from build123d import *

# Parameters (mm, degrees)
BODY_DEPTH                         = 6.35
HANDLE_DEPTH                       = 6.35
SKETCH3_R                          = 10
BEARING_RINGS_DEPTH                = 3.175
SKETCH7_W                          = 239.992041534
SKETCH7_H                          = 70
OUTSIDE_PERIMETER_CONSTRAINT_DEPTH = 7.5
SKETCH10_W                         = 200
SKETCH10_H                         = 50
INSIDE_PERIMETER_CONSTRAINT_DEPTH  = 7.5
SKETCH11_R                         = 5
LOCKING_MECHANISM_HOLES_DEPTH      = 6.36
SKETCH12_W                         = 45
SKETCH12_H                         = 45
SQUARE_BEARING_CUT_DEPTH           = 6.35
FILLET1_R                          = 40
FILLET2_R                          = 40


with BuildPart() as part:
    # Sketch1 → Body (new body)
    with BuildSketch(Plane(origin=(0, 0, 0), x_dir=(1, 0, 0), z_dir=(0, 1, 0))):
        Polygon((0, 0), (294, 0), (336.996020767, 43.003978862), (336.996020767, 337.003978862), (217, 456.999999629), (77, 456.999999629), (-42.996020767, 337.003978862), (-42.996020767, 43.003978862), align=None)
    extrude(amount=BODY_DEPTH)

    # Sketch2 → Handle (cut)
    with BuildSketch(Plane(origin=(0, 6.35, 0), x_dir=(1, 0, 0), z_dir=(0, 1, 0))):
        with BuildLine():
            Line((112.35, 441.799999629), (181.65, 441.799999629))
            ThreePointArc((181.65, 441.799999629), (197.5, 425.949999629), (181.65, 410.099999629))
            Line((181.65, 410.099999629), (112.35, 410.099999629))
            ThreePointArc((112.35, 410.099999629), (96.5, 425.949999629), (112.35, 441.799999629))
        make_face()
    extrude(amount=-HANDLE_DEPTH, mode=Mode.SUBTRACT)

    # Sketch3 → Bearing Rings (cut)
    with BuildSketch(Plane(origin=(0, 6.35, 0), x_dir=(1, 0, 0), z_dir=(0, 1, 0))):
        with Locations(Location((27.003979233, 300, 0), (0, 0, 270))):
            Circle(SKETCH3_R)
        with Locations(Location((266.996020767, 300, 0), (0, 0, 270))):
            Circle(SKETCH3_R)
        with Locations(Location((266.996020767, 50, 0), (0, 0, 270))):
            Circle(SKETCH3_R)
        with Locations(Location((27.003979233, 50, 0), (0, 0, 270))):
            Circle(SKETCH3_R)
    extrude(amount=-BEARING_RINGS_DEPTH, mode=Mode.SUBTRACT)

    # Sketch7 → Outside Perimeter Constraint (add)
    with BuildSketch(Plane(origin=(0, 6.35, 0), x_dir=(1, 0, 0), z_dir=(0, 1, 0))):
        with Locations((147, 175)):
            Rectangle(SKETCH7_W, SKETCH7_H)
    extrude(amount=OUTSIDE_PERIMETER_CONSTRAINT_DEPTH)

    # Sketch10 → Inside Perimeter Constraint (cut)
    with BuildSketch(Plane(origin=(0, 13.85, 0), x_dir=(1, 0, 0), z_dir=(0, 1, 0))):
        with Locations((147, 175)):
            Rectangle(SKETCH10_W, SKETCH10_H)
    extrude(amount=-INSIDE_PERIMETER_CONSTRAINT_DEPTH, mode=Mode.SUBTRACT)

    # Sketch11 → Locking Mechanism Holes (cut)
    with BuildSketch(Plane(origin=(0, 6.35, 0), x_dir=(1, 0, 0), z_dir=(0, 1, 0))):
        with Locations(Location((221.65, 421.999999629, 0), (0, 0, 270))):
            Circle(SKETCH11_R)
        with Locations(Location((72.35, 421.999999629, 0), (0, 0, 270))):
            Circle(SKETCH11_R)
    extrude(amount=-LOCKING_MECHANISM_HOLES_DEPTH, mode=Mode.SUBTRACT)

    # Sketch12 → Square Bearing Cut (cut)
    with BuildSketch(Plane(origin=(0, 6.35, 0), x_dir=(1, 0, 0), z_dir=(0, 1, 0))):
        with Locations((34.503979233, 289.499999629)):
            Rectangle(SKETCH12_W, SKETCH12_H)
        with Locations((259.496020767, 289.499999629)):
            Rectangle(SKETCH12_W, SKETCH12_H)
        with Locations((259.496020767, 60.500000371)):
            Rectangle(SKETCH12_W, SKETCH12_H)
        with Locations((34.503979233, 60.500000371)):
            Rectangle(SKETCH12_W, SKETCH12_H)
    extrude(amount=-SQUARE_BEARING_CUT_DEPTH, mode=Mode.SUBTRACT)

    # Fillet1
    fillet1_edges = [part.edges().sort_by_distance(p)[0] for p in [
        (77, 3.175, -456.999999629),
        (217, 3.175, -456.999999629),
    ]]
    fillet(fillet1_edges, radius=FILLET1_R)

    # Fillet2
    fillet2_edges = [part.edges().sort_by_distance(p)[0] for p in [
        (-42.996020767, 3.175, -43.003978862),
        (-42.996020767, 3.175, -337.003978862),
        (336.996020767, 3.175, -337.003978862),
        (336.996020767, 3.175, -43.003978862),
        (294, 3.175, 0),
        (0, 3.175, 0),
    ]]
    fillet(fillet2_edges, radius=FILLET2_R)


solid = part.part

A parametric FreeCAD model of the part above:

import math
import FreeCAD as App
import Part
import Sketcher
Q = App.Units.Quantity


def edges_at(feature, points):
    """Names of the edges that pass closest to the given points."""
    edges = feature.Shape.Edges
    near = lambda p: min(range(len(edges)), key=lambda i: edges[i].distToShape(Part.Vertex(*p))[0])
    return sorted({f"Edge{near(p) + 1}" for p in points})

doc = App.newDocument("Part")
body = doc.addObject("PartDesign::Body", "Body")

# Sketch on XZ plane
sketch1 = doc.addObject("Sketcher::SketchObject", "Sketch")
body.addObject(sketch1)
sketch1.AttachmentSupport = (doc.XZ_Plane, [""])
sketch1.MapMode = "FlatFace"
sketch1.addGeometry(Part.LineSegment(App.Vector(0, 0, 0), App.Vector(294, 0, 0)), False)
sketch1.addGeometry(Part.LineSegment(App.Vector(294, 0, 0), App.Vector(337, -43, 0)), False)
sketch1.addGeometry(Part.LineSegment(App.Vector(337, -43, 0), App.Vector(337, -337, 0)), False)
sketch1.addGeometry(Part.LineSegment(App.Vector(337, -337, 0), App.Vector(217, -457, 0)), False)
sketch1.addGeometry(Part.LineSegment(App.Vector(217, -457, 0), App.Vector(77, -457, 0)), False)
sketch1.addGeometry(Part.LineSegment(App.Vector(77, -457, 0), App.Vector(-43, -337, 0)), False)
sketch1.addGeometry(Part.LineSegment(App.Vector(-43, -337, 0), App.Vector(-43, -43, 0)), False)
sketch1.addGeometry(Part.LineSegment(App.Vector(-43, -43, 0), App.Vector(0, 0, 0)), False)
sketch1.addConstraint(Sketcher.Constraint("Coincident", 0, 2, 1, 1))
sketch1.addConstraint(Sketcher.Constraint("Coincident", 1, 2, 2, 1))
sketch1.addConstraint(Sketcher.Constraint("Coincident", 2, 2, 3, 1))
sketch1.addConstraint(Sketcher.Constraint("Coincident", 3, 2, 4, 1))
sketch1.addConstraint(Sketcher.Constraint("Coincident", 4, 2, 5, 1))
sketch1.addConstraint(Sketcher.Constraint("Coincident", 5, 2, 6, 1))
sketch1.addConstraint(Sketcher.Constraint("Coincident", 6, 2, 7, 1))
sketch1.addConstraint(Sketcher.Constraint("Coincident", 7, 2, 0, 1))
sketch1.addConstraint(Sketcher.Constraint("Horizontal", 0))
sketch1.addConstraint(Sketcher.Constraint("Vertical", 2))
sketch1.addConstraint(Sketcher.Constraint("Horizontal", 4))
sketch1.addConstraint(Sketcher.Constraint("Vertical", 6))
sketch1.addConstraint(Sketcher.Constraint("Coincident", 7, 2, -1, 1))
sketch1.addConstraint(Sketcher.Constraint("Perpendicular", 3, 5))
sketch1.addConstraint(Sketcher.Constraint("Horizontal", 2, 2, 5, 2))
sketch1.addConstraint(Sketcher.Constraint("Horizontal", 1, 2, 6, 2))
sketch1.addConstraint(Sketcher.Constraint("Equal", 0, 2))
sketch1.addConstraint(Sketcher.Constraint("Equal", 3, 5))
sketch1.addConstraint(Sketcher.Constraint("Equal", 1, 7))
sketch1.addConstraint(Sketcher.Constraint("DistanceX", 0, 1, 0, 2, Q("294 mm")))
sketch1.addConstraint(Sketcher.Constraint("DistanceX", 4, 2, 4, 1, Q("140 mm")))
sketch1.addConstraint(Sketcher.Constraint("DistanceY", 3, 2, -1, 1, Q("457 mm")))
sketch1.addConstraint(Sketcher.Constraint("Distance", 3, Q("169.7 mm")))
pad1 = doc.addObject("PartDesign::Pad", "Pad")
body.addObject(pad1)
pad1.Profile = sketch1
pad1.Length = 6.35
pad1.Reversed = True

# Sketch on XZ plane
sketch2 = doc.addObject("Sketcher::SketchObject", "Sketch001")
body.addObject(sketch2)
sketch2.AttachmentSupport = (doc.XZ_Plane, [""])
sketch2.MapMode = "FlatFace"
sketch2.AttachmentOffset = App.Placement(App.Vector(0, 0, -6.35), App.Rotation())
sketch2.addGeometry(Part.LineSegment(App.Vector(182, -442, 0), App.Vector(112, -442, 0)), False)
sketch2.addGeometry(Part.ArcOfCircle(Part.Circle(App.Vector(112, -426, 0), App.Vector(0, 0, 1), 16), math.radians(90), math.radians(270)), False)
sketch2.addGeometry(Part.LineSegment(App.Vector(112, -410, 0), App.Vector(182, -410, 0)), False)
sketch2.addGeometry(Part.ArcOfCircle(Part.Circle(App.Vector(182, -426, 0), App.Vector(0, 0, 1), 16), math.radians(-90), math.radians(90)), False)
sketch2.addConstraint(Sketcher.Constraint("Tangent", 0, 2, 1, 2))
sketch2.addConstraint(Sketcher.Constraint("Tangent", 1, 1, 2, 1))
sketch2.addConstraint(Sketcher.Constraint("Tangent", 2, 2, 3, 2))
sketch2.addConstraint(Sketcher.Constraint("Tangent", 3, 1, 0, 1))
sketch2.addConstraint(Sketcher.Constraint("Horizontal", 0))
sketch2.addConstraint(Sketcher.Constraint("Horizontal", 2))
sketch2.addConstraint(Sketcher.Constraint("Radius", 1, Q("15.85 mm")))
sketch2.addConstraint(Sketcher.Constraint("DistanceX", 0, 2, 0, 1, Q("69.3 mm")))
sketch2.addConstraint(Sketcher.Constraint("DistanceY", 0, 2, -1, 1, Q("441.8 mm")))
sketch2.addConstraint(Sketcher.Constraint("DistanceX", -1, 1, 1, 3, Q("112.35 mm")))
pocket1 = doc.addObject("PartDesign::Pocket", "Pocket")
body.addObject(pocket1)
pocket1.Profile = sketch2
pocket1.Length = 6.35
pocket1.Reversed = True

# Sketch on XZ plane
sketch3 = doc.addObject("Sketcher::SketchObject", "Sketch002")
body.addObject(sketch3)
sketch3.AttachmentSupport = (doc.XZ_Plane, [""])
sketch3.MapMode = "FlatFace"
sketch3.AttachmentOffset = App.Placement(App.Vector(0, 0, -6.35), App.Rotation())
sketch3.addGeometry(Part.Circle(App.Vector(27, -300, 0), App.Vector(0, 0, 1), 10), False)
sketch3.addGeometry(Part.Circle(App.Vector(267, -300, 0), App.Vector(0, 0, 1), 10), False)
sketch3.addGeometry(Part.Circle(App.Vector(267, -50, 0), App.Vector(0, 0, 1), 10), False)
sketch3.addGeometry(Part.Circle(App.Vector(27, -50, 0), App.Vector(0, 0, 1), 10), False)
sketch3.addConstraint(Sketcher.Constraint("Equal", 0, 1))
sketch3.addConstraint(Sketcher.Constraint("Equal", 1, 2))
sketch3.addConstraint(Sketcher.Constraint("Equal", 2, 3))
sketch3.addConstraint(Sketcher.Constraint("Horizontal", 0, 3, 1, 3))
sketch3.addConstraint(Sketcher.Constraint("Horizontal", 2, 3, 3, 3))
sketch3.addConstraint(Sketcher.Constraint("Vertical", 1, 3, 2, 3))
sketch3.addConstraint(Sketcher.Constraint("Vertical", 0, 3, 3, 3))
sketch3.addConstraint(Sketcher.Constraint("Diameter", 0, Q("20 mm")))
sketch3.addConstraint(Sketcher.Constraint("DistanceY", 0, 3, -1, 1, Q("300 mm")))
sketch3.addConstraint(Sketcher.Constraint("DistanceY", 2, 3, -1, 1, Q("50 mm")))
sketch3.addConstraint(Sketcher.Constraint("DistanceX", -1, 1, 0, 3, Q("27.003979 mm")))
sketch3.addConstraint(Sketcher.Constraint("DistanceX", -1, 1, 1, 3, Q("266.996021 mm")))
pocket2 = doc.addObject("PartDesign::Pocket", "Pocket001")
body.addObject(pocket2)
pocket2.Profile = sketch3
pocket2.Length = 3.175
pocket2.Reversed = True

# Sketch on XZ plane
sketch4 = doc.addObject("Sketcher::SketchObject", "Sketch003")
body.addObject(sketch4)
sketch4.AttachmentSupport = (doc.XZ_Plane, [""])
sketch4.MapMode = "FlatFace"
sketch4.AttachmentOffset = App.Placement(App.Vector(0, 0, -6.35), App.Rotation())
sketch4.addGeometry(Part.LineSegment(App.Vector(27, -210, 0), App.Vector(27, -140, 0)), False)
sketch4.addGeometry(Part.LineSegment(App.Vector(27, -140, 0), App.Vector(267, -140, 0)), False)
sketch4.addGeometry(Part.LineSegment(App.Vector(267, -140, 0), App.Vector(267, -210, 0)), False)
sketch4.addGeometry(Part.LineSegment(App.Vector(267, -210, 0), App.Vector(27, -210, 0)), False)
sketch4.addConstraint(Sketcher.Constraint("Coincident", 0, 2, 1, 1))
sketch4.addConstraint(Sketcher.Constraint("Coincident", 1, 2, 2, 1))
sketch4.addConstraint(Sketcher.Constraint("Coincident", 2, 2, 3, 1))
sketch4.addConstraint(Sketcher.Constraint("Coincident", 3, 2, 0, 1))
sketch4.addConstraint(Sketcher.Constraint("Vertical", 0))
sketch4.addConstraint(Sketcher.Constraint("Horizontal", 1))
sketch4.addConstraint(Sketcher.Constraint("Vertical", 2))
sketch4.addConstraint(Sketcher.Constraint("Horizontal", 3))
sketch4.addConstraint(Sketcher.Constraint("DistanceY", 0, 1, 0, 2, Q("70 mm")))
sketch4.addConstraint(Sketcher.Constraint("DistanceY", 0, 2, -1, 1, Q("140 mm")))
sketch4.addConstraint(Sketcher.Constraint("DistanceX", 1, 1, 1, 2, Q("239.992042 mm")))
sketch4.addConstraint(Sketcher.Constraint("DistanceX", -1, 1, 0, 2, Q("27.003979 mm")))
pad2 = doc.addObject("PartDesign::Pad", "Pad001")
body.addObject(pad2)
pad2.Profile = sketch4
pad2.Length = 7.5
pad2.Reversed = True

# Sketch on XZ plane
sketch5 = doc.addObject("Sketcher::SketchObject", "Sketch004")
body.addObject(sketch5)
sketch5.AttachmentSupport = (doc.XZ_Plane, [""])
sketch5.MapMode = "FlatFace"
sketch5.AttachmentOffset = App.Placement(App.Vector(0, 0, -13.85), App.Rotation())
sketch5.addGeometry(Part.LineSegment(App.Vector(47, -200, 0), App.Vector(47, -150, 0)), False)
sketch5.addGeometry(Part.LineSegment(App.Vector(47, -150, 0), App.Vector(247, -150, 0)), False)
sketch5.addGeometry(Part.LineSegment(App.Vector(247, -150, 0), App.Vector(247, -200, 0)), False)
sketch5.addGeometry(Part.LineSegment(App.Vector(247, -200, 0), App.Vector(47, -200, 0)), False)
sketch5.addConstraint(Sketcher.Constraint("Coincident", 0, 2, 1, 1))
sketch5.addConstraint(Sketcher.Constraint("Coincident", 1, 2, 2, 1))
sketch5.addConstraint(Sketcher.Constraint("Coincident", 2, 2, 3, 1))
sketch5.addConstraint(Sketcher.Constraint("Coincident", 3, 2, 0, 1))
sketch5.addConstraint(Sketcher.Constraint("Vertical", 0))
sketch5.addConstraint(Sketcher.Constraint("Horizontal", 1))
sketch5.addConstraint(Sketcher.Constraint("Vertical", 2))
sketch5.addConstraint(Sketcher.Constraint("Horizontal", 3))
sketch5.addConstraint(Sketcher.Constraint("DistanceX", 1, 1, 1, 2, Q("200 mm")))
sketch5.addConstraint(Sketcher.Constraint("DistanceY", 0, 1, 0, 2, Q("50 mm")))
sketch5.addConstraint(Sketcher.Constraint("DistanceX", -1, 1, 0, 2, Q("47 mm")))
sketch5.addConstraint(Sketcher.Constraint("DistanceY", 0, 2, -1, 1, Q("150 mm")))
pocket3 = doc.addObject("PartDesign::Pocket", "Pocket002")
body.addObject(pocket3)
pocket3.Profile = sketch5
pocket3.Length = 7.5
pocket3.Reversed = True

# Sketch on XZ plane
sketch6 = doc.addObject("Sketcher::SketchObject", "Sketch005")
body.addObject(sketch6)
sketch6.AttachmentSupport = (doc.XZ_Plane, [""])
sketch6.MapMode = "FlatFace"
sketch6.AttachmentOffset = App.Placement(App.Vector(0, 0, -6.35), App.Rotation())
sketch6.addGeometry(Part.Circle(App.Vector(222, -422, 0), App.Vector(0, 0, 1), 5), False)
sketch6.addGeometry(Part.Circle(App.Vector(72, -422, 0), App.Vector(0, 0, 1), 5), False)
sketch6.addConstraint(Sketcher.Constraint("Equal", 0, 1))
sketch6.addConstraint(Sketcher.Constraint("Horizontal", 0, 3, 1, 3))
sketch6.addConstraint(Sketcher.Constraint("Diameter", 0, Q("10 mm")))
sketch6.addConstraint(Sketcher.Constraint("DistanceY", 0, 3, -1, 1, Q("422 mm")))
sketch6.addConstraint(Sketcher.Constraint("DistanceX", 1, 3, 0, 3, Q("149.3 mm")))
sketch6.addConstraint(Sketcher.Constraint("DistanceX", -1, 1, 0, 3, Q("221.65 mm")))
pocket4 = doc.addObject("PartDesign::Pocket", "Pocket003")
body.addObject(pocket4)
pocket4.Profile = sketch6
pocket4.Length = 6.36
pocket4.Reversed = True

# Sketch on XZ plane
sketch7 = doc.addObject("Sketcher::SketchObject", "Sketch006")
body.addObject(sketch7)
sketch7.AttachmentSupport = (doc.XZ_Plane, [""])
sketch7.MapMode = "FlatFace"
sketch7.AttachmentOffset = App.Placement(App.Vector(0, 0, -6.35), App.Rotation())
sketch7.addGeometry(Part.LineSegment(App.Vector(12, -312, 0), App.Vector(12, -267, 0)), False)
sketch7.addGeometry(Part.LineSegment(App.Vector(12, -267, 0), App.Vector(57, -267, 0)), False)
sketch7.addGeometry(Part.LineSegment(App.Vector(57, -267, 0), App.Vector(57, -312, 0)), False)
sketch7.addGeometry(Part.LineSegment(App.Vector(57, -312, 0), App.Vector(12, -312, 0)), False)
sketch7.addGeometry(Part.LineSegment(App.Vector(237, -312, 0), App.Vector(237, -267, 0)), False)
sketch7.addGeometry(Part.LineSegment(App.Vector(237, -267, 0), App.Vector(282, -267, 0)), False)
sketch7.addGeometry(Part.LineSegment(App.Vector(282, -267, 0), App.Vector(282, -312, 0)), False)
sketch7.addGeometry(Part.LineSegment(App.Vector(282, -312, 0), App.Vector(237, -312, 0)), False)
sketch7.addGeometry(Part.LineSegment(App.Vector(237, -83, 0), App.Vector(237, -38, 0)), False)
sketch7.addGeometry(Part.LineSegment(App.Vector(237, -38, 0), App.Vector(282, -38, 0)), False)
sketch7.addGeometry(Part.LineSegment(App.Vector(282, -38, 0), App.Vector(282, -83, 0)), False)
sketch7.addGeometry(Part.LineSegment(App.Vector(282, -83, 0), App.Vector(237, -83, 0)), False)
sketch7.addGeometry(Part.LineSegment(App.Vector(12, -83, 0), App.Vector(12, -38, 0)), False)
sketch7.addGeometry(Part.LineSegment(App.Vector(12, -38, 0), App.Vector(57, -38, 0)), False)
sketch7.addGeometry(Part.LineSegment(App.Vector(57, -38, 0), App.Vector(57, -83, 0)), False)
sketch7.addGeometry(Part.LineSegment(App.Vector(57, -83, 0), App.Vector(12, -83, 0)), False)
sketch7.addConstraint(Sketcher.Constraint("Coincident", 0, 2, 1, 1))
sketch7.addConstraint(Sketcher.Constraint("Coincident", 1, 2, 2, 1))
sketch7.addConstraint(Sketcher.Constraint("Coincident", 2, 2, 3, 1))
sketch7.addConstraint(Sketcher.Constraint("Coincident", 3, 2, 0, 1))
sketch7.addConstraint(Sketcher.Constraint("Coincident", 4, 2, 5, 1))
sketch7.addConstraint(Sketcher.Constraint("Coincident", 5, 2, 6, 1))
sketch7.addConstraint(Sketcher.Constraint("Coincident", 6, 2, 7, 1))
sketch7.addConstraint(Sketcher.Constraint("Coincident", 7, 2, 4, 1))
sketch7.addConstraint(Sketcher.Constraint("Coincident", 8, 2, 9, 1))
sketch7.addConstraint(Sketcher.Constraint("Coincident", 9, 2, 10, 1))
sketch7.addConstraint(Sketcher.Constraint("Coincident", 10, 2, 11, 1))
sketch7.addConstraint(Sketcher.Constraint("Coincident", 11, 2, 8, 1))
sketch7.addConstraint(Sketcher.Constraint("Coincident", 12, 2, 13, 1))
sketch7.addConstraint(Sketcher.Constraint("Coincident", 13, 2, 14, 1))
sketch7.addConstraint(Sketcher.Constraint("Coincident", 14, 2, 15, 1))
sketch7.addConstraint(Sketcher.Constraint("Coincident", 15, 2, 12, 1))
sketch7.addConstraint(Sketcher.Constraint("Vertical", 0))
sketch7.addConstraint(Sketcher.Constraint("Horizontal", 1))
sketch7.addConstraint(Sketcher.Constraint("Vertical", 2))
sketch7.addConstraint(Sketcher.Constraint("Horizontal", 3))
sketch7.addConstraint(Sketcher.Constraint("Vertical", 4))
sketch7.addConstraint(Sketcher.Constraint("Horizontal", 5))
sketch7.addConstraint(Sketcher.Constraint("Vertical", 6))
sketch7.addConstraint(Sketcher.Constraint("Horizontal", 7))
sketch7.addConstraint(Sketcher.Constraint("Vertical", 8))
sketch7.addConstraint(Sketcher.Constraint("Horizontal", 9))
sketch7.addConstraint(Sketcher.Constraint("Vertical", 10))
sketch7.addConstraint(Sketcher.Constraint("Horizontal", 11))
sketch7.addConstraint(Sketcher.Constraint("Vertical", 12))
sketch7.addConstraint(Sketcher.Constraint("Horizontal", 13))
sketch7.addConstraint(Sketcher.Constraint("Vertical", 14))
sketch7.addConstraint(Sketcher.Constraint("Horizontal", 15))
sketch7.addConstraint(Sketcher.Constraint("Horizontal", 1, 2, 4, 2))
sketch7.addConstraint(Sketcher.Constraint("Horizontal", 3, 2, 6, 2))
sketch7.addConstraint(Sketcher.Constraint("Horizontal", 9, 2, 12, 2))
sketch7.addConstraint(Sketcher.Constraint("Horizontal", 11, 2, 14, 2))
sketch7.addConstraint(Sketcher.Constraint("Vertical", 7, 2, 8, 2))
sketch7.addConstraint(Sketcher.Constraint("Vertical", 6, 2, 9, 2))
sketch7.addConstraint(Sketcher.Constraint("Vertical", 3, 2, 12, 2))
sketch7.addConstraint(Sketcher.Constraint("Vertical", 2, 2, 13, 2))
sketch7.addConstraint(Sketcher.Constraint("Equal", 3, 5))
sketch7.addConstraint(Sketcher.Constraint("Equal", 15, 0))
sketch7.addConstraint(Sketcher.Constraint("Equal", 6, 8))
sketch7.addConstraint(Sketcher.Constraint("DistanceX", 1, 1, 1, 2, Q("45 mm")))
sketch7.addConstraint(Sketcher.Constraint("DistanceY", 0, 2, -1, 1, Q("267 mm")))
sketch7.addConstraint(Sketcher.Constraint("DistanceY", 8, 2, -1, 1, Q("38 mm")))
sketch7.addConstraint(Sketcher.Constraint("DistanceX", -1, 1, 0, 2, Q("12.003979 mm")))
sketch7.addConstraint(Sketcher.Constraint("DistanceX", -1, 1, 4, 2, Q("236.996021 mm")))
pocket5 = doc.addObject("PartDesign::Pocket", "Pocket004")
body.addObject(pocket5)
pocket5.Profile = sketch7
pocket5.Length = 6.35
pocket5.Reversed = True
doc.recompute()

fillet = doc.addObject("PartDesign::Fillet", "Fillet")
body.addObject(fillet)
fillet.Base = (pocket5, edges_at(pocket5, [(77, 3.175, -457), (217, 3.175, -457)]))
fillet.Radius = 40
doc.recompute()

fillet2 = doc.addObject("PartDesign::Fillet", "Fillet001")
body.addObject(fillet2)
fillet2.Base = (fillet, edges_at(fillet, [
    (-42.996, 3.175, -43.004),
    (-42.996, 3.175, -337.004),
    (336.996, 3.175, -337.004),
    (336.996, 3.175, -43.004),
    (294, 3.175, 0),
    (0, 3.175, 0),
]))
fillet2.Radius = 40

doc.recompute()
